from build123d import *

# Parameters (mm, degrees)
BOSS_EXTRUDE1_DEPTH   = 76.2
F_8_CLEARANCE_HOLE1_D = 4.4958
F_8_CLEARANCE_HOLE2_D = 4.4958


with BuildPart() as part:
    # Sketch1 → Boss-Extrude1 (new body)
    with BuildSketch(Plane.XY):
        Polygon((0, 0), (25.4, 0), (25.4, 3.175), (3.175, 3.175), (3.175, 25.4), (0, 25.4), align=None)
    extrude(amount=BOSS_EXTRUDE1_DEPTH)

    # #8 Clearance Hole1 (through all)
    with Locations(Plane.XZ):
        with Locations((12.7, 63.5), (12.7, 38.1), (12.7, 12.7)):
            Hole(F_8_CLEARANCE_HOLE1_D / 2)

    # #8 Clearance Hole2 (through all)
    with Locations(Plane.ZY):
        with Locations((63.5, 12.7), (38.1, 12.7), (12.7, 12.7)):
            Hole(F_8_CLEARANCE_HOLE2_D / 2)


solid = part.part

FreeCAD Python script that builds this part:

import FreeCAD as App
import Part
import Sketcher
from FreeCAD import Vector
Q = App.Units.Quantity

doc = App.newDocument("Part")
body = doc.addObject("PartDesign::Body", "Body")

# Sketch on XY plane
sketch1 = doc.addObject("Sketcher::SketchObject", "Sketch")
body.addObject(sketch1)
sketch1.AttachmentSupport = (doc.XY_Plane, [""])
sketch1.MapMode = "FlatFace"
sketch1.addGeometry([
    Part.LineSegment(Vector(0, 0, 0), Vector(25.4, 0, 0)),  # 0
    Part.LineSegment(Vector(25.4, 0, 0), Vector(25.4, 3.2, 0)),  # 1
    Part.LineSegment(Vector(25.4, 3.2, 0), Vector(3.2, 3.2, 0)),  # 2
    Part.LineSegment(Vector(3.2, 3.2, 0), Vector(3.2, 25.4, 0)),  # 3
    Part.LineSegment(Vector(3.2, 25.4, 0), Vector(0, 25.4, 0)),  # 4
    Part.LineSegment(Vector(0, 25.4, 0), Vector(0, 0, 0)),  # 5
], False)
sketch1.addConstraint([
    Sketcher.Constraint("Coincident", 0, 2, 1, 1),
    Sketcher.Constraint("Coincident", 1, 2, 2, 1),
    Sketcher.Constraint("Coincident", 2, 2, 3, 1),
    Sketcher.Constraint("Coincident", 3, 2, 4, 1),
    Sketcher.Constraint("Coincident", 4, 2, 5, 1),
    Sketcher.Constraint("Coincident", 5, 2, 0, 1),
    Sketcher.Constraint("Horizontal", 0),
    Sketcher.Constraint("Vertical", 1),
    Sketcher.Constraint("Horizontal", 2),
    Sketcher.Constraint("Vertical", 3),
    Sketcher.Constraint("Horizontal", 4),
    Sketcher.Constraint("Vertical", 5),
    Sketcher.Constraint("Coincident", 5, 2, -1, 1),
    Sketcher.Constraint("Equal", 4, 1),
    Sketcher.Constraint("Equal", 2, 3),
    Sketcher.Constraint("DistanceX", 0, 1, 0, 2, Q("1 in")),
    Sketcher.Constraint("DistanceX", 2, 2, 2, 1, Q("0.875 in")),
])
pad1 = doc.addObject("PartDesign::Pad", "Pad")
body.addObject(pad1)
pad1.Profile = sketch1
pad1.Length = Q("3 in")

# Sketch on XZ plane
sketch2 = doc.addObject("Sketcher::SketchObject", "Sketch001")
body.addObject(sketch2)
sketch2.AttachmentSupport = (doc.XZ_Plane, [""])
sketch2.MapMode = "FlatFace"
sketch2.addGeometry([
    Part.Circle(Vector(12.7, 63.5, 0), Vector(0, 0, 1), 2.2),
    Part.Circle(Vector(12.7, 38.1, 0), Vector(0, 0, 1), 2.2),
    Part.Circle(Vector(12.7, 12.7, 0), Vector(0, 0, 1), 2.2),
], False)
sketch2.addConstraint([
    Sketcher.Constraint("Equal", 0, 1),
    Sketcher.Constraint("Equal", 1, 2),
    Sketcher.Constraint("Vertical", 0, 3, 1, 3),
    Sketcher.Constraint("Vertical", 1, 3, 2, 3),
    Sketcher.Constraint("Diameter", 0, Q("0.177 in")),
    Sketcher.Constraint("DistanceY", 1, 3, 0, 3, Q("1 in")),
    Sketcher.Constraint("DistanceY", 2, 3, 1, 3, Q("1 in")),
    Sketcher.Constraint("DistanceX", -1, 1, 0, 3, Q("0.5 in")),
    Sketcher.Constraint("DistanceY", -1, 1, 0, 3, Q("2.5 in")),
])
doc.recompute()
hole = doc.addObject("PartDesign::Hole", "Hole")
body.addObject(hole)
hole.Profile = sketch2
hole.ThreadType = "None"
hole.Diameter = Q("0.177 in")
hole.DepthType = "ThroughAll"

# Sketch on YZ plane
sketch3 = doc.addObject("Sketcher::SketchObject", "Sketch002")
body.addObject(sketch3)
sketch3.AttachmentSupport = (doc.YZ_Plane, [""])
sketch3.MapMode = "FlatFace"
sketch3.addGeometry([
    Part.Circle(Vector(12.7, 63.5, 0), Vector(0, 0, 1), 2.2),
    Part.Circle(Vector(12.7, 38.1, 0), Vector(0, 0, 1), 2.2),
    Part.Circle(Vector(12.7, 12.7, 0), Vector(0, 0, 1), 2.2),
], False)
sketch3.addConstraint([
    Sketcher.Constraint("Equal", 0, 1),
    Sketcher.Constraint("Equal", 1, 2),
    Sketcher.Constraint("Vertical", 0, 3, 1, 3),
    Sketcher.Constraint("Vertical", 1, 3, 2, 3),
    Sketcher.Constraint("Diameter", 0, Q("0.177 in")),
    Sketcher.Constraint("DistanceY", 1, 3, 0, 3, Q("1 in")),
    Sketcher.Constraint("DistanceY", 2, 3, 1, 3, Q("1 in")),
    Sketcher.Constraint("DistanceX", -1, 1, 0, 3, Q("0.5 in")),
    Sketcher.Constraint("DistanceY", -1, 1, 0, 3, Q("2.5 in")),
])
doc.recompute()
hole2 = doc.addObject("PartDesign::Hole", "Hole001")
body.addObject(hole2)
hole2.Profile = sketch3
hole2.ThreadType = "None"
hole2.Diameter = Q("0.177 in")
hole2.DepthType = "ThroughAll"
hole2.Reversed = True

doc.recompute()
